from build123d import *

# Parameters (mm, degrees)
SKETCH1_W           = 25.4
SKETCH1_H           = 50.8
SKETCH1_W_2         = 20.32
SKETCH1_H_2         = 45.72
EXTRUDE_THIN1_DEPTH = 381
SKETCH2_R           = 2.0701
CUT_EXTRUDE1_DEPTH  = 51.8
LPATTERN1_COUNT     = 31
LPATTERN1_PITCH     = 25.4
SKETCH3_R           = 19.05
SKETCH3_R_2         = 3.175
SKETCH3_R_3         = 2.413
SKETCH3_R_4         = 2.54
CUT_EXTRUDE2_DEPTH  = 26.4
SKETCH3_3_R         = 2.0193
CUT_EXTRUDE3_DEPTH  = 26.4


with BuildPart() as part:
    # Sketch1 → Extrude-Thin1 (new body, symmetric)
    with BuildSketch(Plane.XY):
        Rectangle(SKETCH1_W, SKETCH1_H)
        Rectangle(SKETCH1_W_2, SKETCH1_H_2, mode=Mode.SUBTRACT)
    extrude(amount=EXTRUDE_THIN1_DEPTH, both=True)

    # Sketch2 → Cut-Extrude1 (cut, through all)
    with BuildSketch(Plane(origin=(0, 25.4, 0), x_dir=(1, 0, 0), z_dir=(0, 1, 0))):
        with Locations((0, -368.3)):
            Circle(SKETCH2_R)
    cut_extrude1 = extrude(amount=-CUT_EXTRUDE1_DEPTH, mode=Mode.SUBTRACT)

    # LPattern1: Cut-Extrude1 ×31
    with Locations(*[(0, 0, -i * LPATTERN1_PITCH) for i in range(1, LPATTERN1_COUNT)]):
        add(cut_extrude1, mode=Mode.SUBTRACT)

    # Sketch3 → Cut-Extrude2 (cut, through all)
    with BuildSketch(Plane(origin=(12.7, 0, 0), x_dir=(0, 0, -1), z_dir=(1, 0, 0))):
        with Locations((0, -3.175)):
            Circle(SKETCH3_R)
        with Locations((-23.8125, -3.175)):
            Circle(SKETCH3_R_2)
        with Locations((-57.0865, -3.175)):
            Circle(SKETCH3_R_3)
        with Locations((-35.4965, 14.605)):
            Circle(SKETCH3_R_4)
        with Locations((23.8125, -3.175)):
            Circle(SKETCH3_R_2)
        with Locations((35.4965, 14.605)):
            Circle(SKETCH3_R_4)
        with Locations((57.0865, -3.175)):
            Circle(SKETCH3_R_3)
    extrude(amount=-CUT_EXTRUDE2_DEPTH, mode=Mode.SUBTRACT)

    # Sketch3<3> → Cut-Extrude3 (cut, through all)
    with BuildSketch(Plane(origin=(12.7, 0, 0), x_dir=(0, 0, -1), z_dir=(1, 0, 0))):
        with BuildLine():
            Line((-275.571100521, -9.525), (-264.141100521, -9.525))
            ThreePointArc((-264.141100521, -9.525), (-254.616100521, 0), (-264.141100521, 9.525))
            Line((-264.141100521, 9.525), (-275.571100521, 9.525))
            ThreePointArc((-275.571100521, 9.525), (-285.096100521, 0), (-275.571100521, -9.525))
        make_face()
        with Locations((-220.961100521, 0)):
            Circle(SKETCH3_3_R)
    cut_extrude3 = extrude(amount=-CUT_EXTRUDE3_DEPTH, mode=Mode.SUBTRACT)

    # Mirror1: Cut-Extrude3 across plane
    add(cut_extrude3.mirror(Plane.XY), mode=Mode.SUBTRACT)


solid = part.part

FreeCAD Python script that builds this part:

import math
import FreeCAD as App
import Part
import Sketcher
from FreeCAD import Vector
Q = App.Units.Quantity

doc = App.newDocument("Part")
body = doc.addObject("PartDesign::Body", "Body")

# Sketch on XY plane
sketch1 = doc.addObject("Sketcher::SketchObject", "Sketch")
body.addObject(sketch1)
sketch1.AttachmentSupport = (doc.XY_Plane, [""])
sketch1.MapMode = "FlatFace"
sketch1.addGeometry(Part.LineSegment(Vector(-13, 25, 0), Vector(-13, -25, 0)), False)
sketch1.addGeometry(Part.LineSegment(Vector(-13, -25, 0), Vector(13, -25, 0)), False)
sketch1.addGeometry(Part.LineSegment(Vector(13, -25, 0), Vector(13, 25, 0)), False)
sketch1.addGeometry(Part.LineSegment(Vector(13, 25, 0), Vector(-13, 25, 0)), False)
sketch1.addGeometry(Part.LineSegment(Vector(10, -23, 0), Vector(-10, -23, 0)), False)
sketch1.addGeometry(Part.LineSegment(Vector(-10, -23, 0), Vector(-10, 23, 0)), False)
sketch1.addGeometry(Part.LineSegment(Vector(-10, 23, 0), Vector(10, 23, 0)), False)
sketch1.addGeometry(Part.LineSegment(Vector(10, 23, 0), Vector(10, -23, 0)), False)
sketch1.addConstraint(Sketcher.Constraint("Coincident", 0, 2, 1, 1))
sketch1.addConstraint(Sketcher.Constraint("Coincident", 1, 2, 2, 1))
sketch1.addConstraint(Sketcher.Constraint("Coincident", 2, 2, 3, 1))
sketch1.addConstraint(Sketcher.Constraint("Coincident", 3, 2, 0, 1))
sketch1.addConstraint(Sketcher.Constraint("Coincident", 4, 2, 5, 1))
sketch1.addConstraint(Sketcher.Constraint("Coincident", 5, 2, 6, 1))
sketch1.addConstraint(Sketcher.Constraint("Coincident", 6, 2, 7, 1))
sketch1.addConstraint(Sketcher.Constraint("Coincident", 7, 2, 4, 1))
sketch1.addConstraint(Sketcher.Constraint("Vertical", 0))
sketch1.addConstraint(Sketcher.Constraint("Horizontal", 1))
sketch1.addConstraint(Sketcher.Constraint("Vertical", 2))
sketch1.addConstraint(Sketcher.Constraint("Horizontal", 3))
sketch1.addConstraint(Sketcher.Constraint("Horizontal", 4))
sketch1.addConstraint(Sketcher.Constraint("Vertical", 5))
sketch1.addConstraint(Sketcher.Constraint("Horizontal", 6))
sketch1.addConstraint(Sketcher.Constraint("Vertical", 7))
sketch1.addConstraint(Sketcher.Constraint("Symmetric", 0, 2, 2, 2, -1, 1))
sketch1.addConstraint(Sketcher.Constraint("Symmetric", 4, 2, 6, 2, -1, 1))
sketch1.addConstraint(Sketcher.Constraint("DistanceX", 1, 1, 1, 2, Q("1 in")))
sketch1.addConstraint(Sketcher.Constraint("DistanceY", 0, 2, 0, 1, Q("2 in")))
sketch1.addConstraint(Sketcher.Constraint("DistanceX", 4, 2, 4, 1, Q("0.8 in")))
sketch1.addConstraint(Sketcher.Constraint("DistanceY", 5, 1, 5, 2, Q("1.8 in")))
pad1 = doc.addObject("PartDesign::Pad", "Pad")
body.addObject(pad1)
pad1.Profile = sketch1
pad1.Length = Q("30 in")
pad1.Midplane = True

# Sketch on XZ plane
sketch2 = doc.addObject("Sketcher::SketchObject", "Sketch001")
body.addObject(sketch2)
sketch2.AttachmentSupport = (doc.XZ_Plane, [""])
sketch2.MapMode = "FlatFace"
sketch2.AttachmentOffset = App.Placement(Vector(0, 0, -1 * 25.4), App.Rotation())
sketch2.addGeometry(Part.Circle(Vector(0, 368.3, 0), Vector(0, 0, 1), 2.1), False)
sketch2.addConstraint(Sketcher.Constraint("PointOnObject", 0, 3, -2))
sketch2.addConstraint(Sketcher.Constraint("Diameter", 0, Q("0.163 in")))
sketch2.addConstraint(Sketcher.Constraint("DistanceY", -1, 1, 0, 3, Q("14.5 in")))
pocket1 = doc.addObject("PartDesign::Pocket", "Pocket")
body.addObject(pocket1)
pocket1.Profile = sketch2
pocket1.Type = "ThroughAll"
pocket1.Reversed = True
doc.recompute()

linearpattern = doc.addObject("PartDesign::LinearPattern", "LinearPattern")
body.addObject(linearpattern)
linearpattern.Originals = [pocket1]
linearpattern.Direction = (doc.Z_Axis, [""])
linearpattern.Mode = "offset"
linearpattern.Offset = Q("1 in")
linearpattern.Occurrences = 31
linearpattern.Reversed = True
body.Tip = linearpattern

# Sketch on YZ plane
sketch3 = doc.addObject("Sketcher::SketchObject", "Sketch002")
body.addObject(sketch3)
sketch3.AttachmentSupport = (doc.YZ_Plane, [""])
sketch3.MapMode = "FlatFace"
sketch3.AttachmentOffset = App.Placement(Vector(0, 0, 0.5 * 25.4), App.Rotation())
sketch3.addGeometry(Part.Circle(Vector(-3.2, 0, 0), Vector(0, 0, 1), 19.1), False)
sketch3.addGeometry(Part.Circle(Vector(-3.2, 23.8, 0), Vector(0, 0, 1), 3.2), False)
sketch3.addGeometry(Part.Circle(Vector(-3.2, 57.1, 0), Vector(0, 0, 1), 2.4), False)
sketch3.addGeometry(Part.Circle(Vector(14.6, 35.5, 0), Vector(0, 0, 1), 2.5), False)
sketch3.addGeometry(Part.Circle(Vector(-3.2, -23.8, 0), Vector(0, 0, 1), 3.2), False)
sketch3.addGeometry(Part.Circle(Vector(14.6, -35.5, 0), Vector(0, 0, 1), 2.5), False)
sketch3.addGeometry(Part.Circle(Vector(-3.2, -57.1, 0), Vector(0, 0, 1), 2.4), False)
sketch3.addConstraint(Sketcher.Constraint("Equal", 1, 4))
sketch3.addConstraint(Sketcher.Constraint("Equal", 3, 5))
sketch3.addConstraint(Sketcher.Constraint("Equal", 2, 6))
sketch3.addConstraint(Sketcher.Constraint("Symmetric", 1, 3, 4, 3, -1))
sketch3.addConstraint(Sketcher.Constraint("Symmetric", 3, 3, 5, 3, -1))
sketch3.addConstraint(Sketcher.Constraint("Symmetric", 2, 3, 6, 3, -1))
sketch3.addConstraint(Sketcher.Constraint("PointOnObject", 0, 3, -1))
sketch3.addConstraint(Sketcher.Constraint("Vertical", 0, 3, 1, 3))
sketch3.addConstraint(Sketcher.Constraint("Vertical", 1, 3, 2, 3))
sketch3.addConstraint(Sketcher.Constraint("Diameter", 0, Q("1.5 in")))
sketch3.addConstraint(Sketcher.Constraint("Diameter", 3, Q("0.2 in")))
sketch3.addConstraint(Sketcher.Constraint("Diameter", 1, Q("0.25 in")))
sketch3.addConstraint(Sketcher.Constraint("Diameter", 2, Q("0.19 in")))
sketch3.addConstraint(Sketcher.Constraint("DistanceX", 1, 3, 3, 3, Q("0.7 in")))
sketch3.addConstraint(Sketcher.Constraint("DistanceY", 1, 3, 2, 3, Q("1.31 in")))
sketch3.addConstraint(Sketcher.Constraint("DistanceY", 1, 3, 3, 3, Q("0.46 in")))
sketch3.addConstraint(Sketcher.Constraint("DistanceX", 0, 3, -1, 1, Q("0.125 in")))
sketch3.addConstraint(Sketcher.Constraint("DistanceY", -1, 1, 1, 3, Q("0.9375 in")))
pocket2 = doc.addObject("PartDesign::Pocket", "Pocket001")
body.addObject(pocket2)
pocket2.Profile = sketch3
pocket2.Type = "ThroughAll"

# Sketch on YZ plane
sketch4 = doc.addObject("Sketcher::SketchObject", "Sketch003")
body.addObject(sketch4)
sketch4.AttachmentSupport = (doc.YZ_Plane, [""])
sketch4.MapMode = "FlatFace"
sketch4.AttachmentOffset = App.Placement(Vector(0, 0, 0.5 * 25.4), App.Rotation())
sketch4.addGeometry(Part.LineSegment(Vector(-9.5, 275.6, 0), Vector(-9.5, 264.1, 0)), False)
sketch4.addGeometry(Part.ArcOfCircle(Part.Circle(Vector(0, 264.1, 0), Vector(0, 0, 1), 9.5), math.radians(180), math.radians(360)), False)
sketch4.addGeometry(Part.LineSegment(Vector(9.5, 264.1, 0), Vector(9.5, 275.6, 0)), False)
sketch4.addGeometry(Part.ArcOfCircle(Part.Circle(Vector(0, 275.6, 0), Vector(0, 0, 1), 9.5), math.radians(0), math.radians(180)), False)
sketch4.addGeometry(Part.Circle(Vector(0, 221, 0), Vector(0, 0, 1), 2), False)
sketch4.addConstraint(Sketcher.Constraint("Tangent", 0, 2, 1, 1))
sketch4.addConstraint(Sketcher.Constraint("Tangent", 1, 2, 2, 1))
sketch4.addConstraint(Sketcher.Constraint("Tangent", 2, 2, 3, 1))
sketch4.addConstraint(Sketcher.Constraint("Tangent", 3, 2, 0, 1))
sketch4.addConstraint(Sketcher.Constraint("Vertical", 0))
sketch4.addConstraint(Sketcher.Constraint("Vertical", 2))
sketch4.addConstraint(Sketcher.Constraint("PointOnObject", 1, 3, -2))
sketch4.addConstraint(Sketcher.Constraint("PointOnObject", 4, 3, -2))
sketch4.addConstraint(Sketcher.Constraint("Diameter", 4, Q("0.159 in")))
sketch4.addConstraint(Sketcher.Constraint("Radius", 1, Q("0.375 in")))
sketch4.addConstraint(Sketcher.Constraint("DistanceY", 0, 2, 0, 1, Q("0.45 in")))
sketch4.addConstraint(Sketcher.Constraint("DistanceY", 4, 3, 1, 3, Q("1.7 in")))
sketch4.addConstraint(Sketcher.Constraint("DistanceY", -1, 1, 1, 3, Q("264.141101 mm")))
pocket3 = doc.addObject("PartDesign::Pocket", "Pocket002")
body.addObject(pocket3)
pocket3.Profile = sketch4
pocket3.Type = "ThroughAll"
doc.recompute()

mirrored = doc.addObject("PartDesign::Mirrored", "Mirrored")
body.addObject(mirrored)
mirrored.Originals = [pocket3]
mirrored.MirrorPlane = (doc.XY_Plane, [""])
body.Tip = mirrored

doc.recompute()
